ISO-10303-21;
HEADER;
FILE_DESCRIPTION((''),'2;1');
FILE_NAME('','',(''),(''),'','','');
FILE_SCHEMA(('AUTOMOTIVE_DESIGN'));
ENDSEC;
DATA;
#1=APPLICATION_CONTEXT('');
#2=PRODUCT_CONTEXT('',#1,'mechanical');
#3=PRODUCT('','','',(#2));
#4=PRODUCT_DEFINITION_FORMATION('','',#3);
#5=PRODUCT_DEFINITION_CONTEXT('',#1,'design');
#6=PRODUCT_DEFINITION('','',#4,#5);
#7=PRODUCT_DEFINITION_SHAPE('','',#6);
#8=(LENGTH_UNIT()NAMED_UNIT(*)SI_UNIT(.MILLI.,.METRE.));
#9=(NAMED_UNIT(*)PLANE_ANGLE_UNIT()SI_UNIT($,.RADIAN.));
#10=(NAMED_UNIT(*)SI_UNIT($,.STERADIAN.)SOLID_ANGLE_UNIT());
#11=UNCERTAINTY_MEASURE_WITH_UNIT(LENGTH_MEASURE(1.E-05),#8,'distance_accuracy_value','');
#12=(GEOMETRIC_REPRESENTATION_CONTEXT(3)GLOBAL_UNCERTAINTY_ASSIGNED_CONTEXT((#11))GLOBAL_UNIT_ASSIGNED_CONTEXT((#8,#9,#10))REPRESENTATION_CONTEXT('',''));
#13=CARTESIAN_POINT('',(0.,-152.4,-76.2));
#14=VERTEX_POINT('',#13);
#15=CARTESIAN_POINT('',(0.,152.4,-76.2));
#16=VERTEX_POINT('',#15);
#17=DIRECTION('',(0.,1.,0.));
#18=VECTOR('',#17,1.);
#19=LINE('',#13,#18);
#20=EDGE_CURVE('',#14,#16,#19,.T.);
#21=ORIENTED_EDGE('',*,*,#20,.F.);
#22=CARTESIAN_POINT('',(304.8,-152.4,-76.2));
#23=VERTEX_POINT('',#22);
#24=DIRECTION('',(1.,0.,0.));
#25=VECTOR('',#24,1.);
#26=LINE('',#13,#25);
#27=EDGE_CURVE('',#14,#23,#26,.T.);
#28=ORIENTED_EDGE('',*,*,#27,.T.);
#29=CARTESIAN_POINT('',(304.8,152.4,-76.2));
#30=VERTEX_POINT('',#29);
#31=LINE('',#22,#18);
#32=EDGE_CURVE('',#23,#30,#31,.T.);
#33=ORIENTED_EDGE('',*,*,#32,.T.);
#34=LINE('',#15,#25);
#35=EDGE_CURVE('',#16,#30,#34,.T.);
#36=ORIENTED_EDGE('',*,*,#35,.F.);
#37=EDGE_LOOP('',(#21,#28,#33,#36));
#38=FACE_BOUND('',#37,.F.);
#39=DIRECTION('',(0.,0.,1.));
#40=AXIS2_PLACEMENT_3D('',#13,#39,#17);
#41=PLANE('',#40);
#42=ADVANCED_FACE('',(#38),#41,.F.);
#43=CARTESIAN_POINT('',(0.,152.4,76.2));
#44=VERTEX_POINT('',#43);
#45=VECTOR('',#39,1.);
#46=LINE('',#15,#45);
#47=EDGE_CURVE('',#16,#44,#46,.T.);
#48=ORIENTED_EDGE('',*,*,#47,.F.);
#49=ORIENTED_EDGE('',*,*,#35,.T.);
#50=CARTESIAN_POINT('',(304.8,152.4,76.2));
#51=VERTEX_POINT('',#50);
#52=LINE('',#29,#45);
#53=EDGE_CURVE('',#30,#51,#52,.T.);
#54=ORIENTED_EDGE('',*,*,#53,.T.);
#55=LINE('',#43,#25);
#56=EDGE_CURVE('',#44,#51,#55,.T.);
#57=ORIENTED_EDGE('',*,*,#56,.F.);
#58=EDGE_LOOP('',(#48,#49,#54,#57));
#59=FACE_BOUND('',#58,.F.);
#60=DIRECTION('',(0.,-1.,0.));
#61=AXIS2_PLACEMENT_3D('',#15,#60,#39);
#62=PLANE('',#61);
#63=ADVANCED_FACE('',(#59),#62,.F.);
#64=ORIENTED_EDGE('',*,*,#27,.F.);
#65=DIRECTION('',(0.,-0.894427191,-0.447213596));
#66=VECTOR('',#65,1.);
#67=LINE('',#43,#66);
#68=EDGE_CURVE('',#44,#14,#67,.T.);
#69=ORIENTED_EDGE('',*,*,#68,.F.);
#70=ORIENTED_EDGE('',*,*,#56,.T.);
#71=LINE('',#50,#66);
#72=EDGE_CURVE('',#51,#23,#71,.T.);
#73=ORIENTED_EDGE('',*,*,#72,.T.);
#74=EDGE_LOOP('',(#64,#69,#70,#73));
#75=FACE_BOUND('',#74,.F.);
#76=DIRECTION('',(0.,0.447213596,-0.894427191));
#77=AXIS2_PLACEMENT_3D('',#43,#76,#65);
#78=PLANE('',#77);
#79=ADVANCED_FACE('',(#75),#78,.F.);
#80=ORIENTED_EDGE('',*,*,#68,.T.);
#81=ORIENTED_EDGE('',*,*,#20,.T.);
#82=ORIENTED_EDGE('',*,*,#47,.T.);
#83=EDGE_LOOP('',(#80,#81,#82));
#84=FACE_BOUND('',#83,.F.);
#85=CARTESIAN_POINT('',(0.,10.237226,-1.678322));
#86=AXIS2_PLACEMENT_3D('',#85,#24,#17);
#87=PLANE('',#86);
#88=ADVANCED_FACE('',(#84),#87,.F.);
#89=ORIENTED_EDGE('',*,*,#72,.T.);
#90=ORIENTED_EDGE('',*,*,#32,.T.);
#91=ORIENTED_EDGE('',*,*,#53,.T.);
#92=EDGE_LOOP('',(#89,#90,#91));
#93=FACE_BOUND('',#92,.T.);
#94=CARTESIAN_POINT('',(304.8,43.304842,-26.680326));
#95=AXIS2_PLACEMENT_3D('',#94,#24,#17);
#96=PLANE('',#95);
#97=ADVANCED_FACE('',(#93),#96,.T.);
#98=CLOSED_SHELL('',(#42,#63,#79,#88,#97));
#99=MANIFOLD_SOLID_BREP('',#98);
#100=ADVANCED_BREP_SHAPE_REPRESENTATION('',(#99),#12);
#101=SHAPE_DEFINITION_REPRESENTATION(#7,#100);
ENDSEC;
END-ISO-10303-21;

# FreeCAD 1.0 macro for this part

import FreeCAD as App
import Part
import Sketcher
Q = App.Units.Quantity

doc = App.newDocument("Part")
body = doc.addObject("PartDesign::Body", "Body")

sketch1 = body.newObject("Sketcher::SketchObject", "Sketch")
sketch1.AttachmentSupport = (doc.getObject("YZ_Plane"), [""])
sketch1.MapMode = "FlatFace"
sketch1.addGeometry([
    Part.LineSegment(App.Vector(152, 76, 0), App.Vector(-152, -76, 0)),
    Part.LineSegment(App.Vector(-152, -76, 0), App.Vector(152, -76, 0)),
    Part.LineSegment(App.Vector(152, -76, 0), App.Vector(152, 76, 0)),
    Part.LineSegment(App.Vector(-99, -64, 0), App.Vector(140, 56, 0)),
    Part.LineSegment(App.Vector(140, 56, 0), App.Vector(140, -64, 0)),
    Part.LineSegment(App.Vector(140, -64, 0), App.Vector(-99, -64, 0)),
], False)
sketch1.addConstraint([
    Sketcher.Constraint("Coincident", 0, 2, 1, 1),
    Sketcher.Constraint("Coincident", 1, 2, 2, 1),
    Sketcher.Constraint("Coincident", 2, 2, 0, 1),
    Sketcher.Constraint("Coincident", 3, 2, 4, 1),
    Sketcher.Constraint("Coincident", 4, 2, 5, 1),
    Sketcher.Constraint("Coincident", 5, 2, 3, 1),
    Sketcher.Constraint("Horizontal", 1),
    Sketcher.Constraint("Vertical", 2),
    Sketcher.Constraint("Vertical", 4),
    Sketcher.Constraint("Horizontal", 5),
    Sketcher.Constraint("Symmetric", 0, 2, 2, 2, -1, 1),
    Sketcher.Constraint("Parallel", 0, 3),
    Sketcher.Constraint("DistanceX", 1, 1, 1, 2, Q("12 in")),
    Sketcher.Constraint("DistanceY", 2, 1, 2, 2, Q("6 in")),
    Sketcher.Constraint("DistanceX", -1, 1, 3, 2, Q("5.5 in")),
    Sketcher.Constraint("DistanceY", 4, 2, -1, 1, Q("2.5 in")),
    Sketcher.Constraint("DistanceY", 4, 2, 4, 1, 119.150968),
])
pad1 = body.newObject("PartDesign::Pad", "Pad")
pad1.Profile = sketch1
pad1.Length = Q("12 in")

sketch2 = body.newObject("Sketcher::SketchObject", "Sketch001")
sketch2.AttachmentSupport = (doc.getObject("YZ_Plane"), [""])
sketch2.MapMode = "FlatFace"
sketch2.AttachmentOffset = App.Placement(App.Vector(0, 0, 12 * 25.4), App.Rotation())
sketch2.addGeometry([
    Part.LineSegment(App.Vector(140, 56, 0), App.Vector(-99, -64, 0)),
    Part.LineSegment(App.Vector(-99, -64, 0), App.Vector(140, -64, 0)),
    Part.LineSegment(App.Vector(140, -64, 0), App.Vector(140, 56, 0)),
], False)
sketch2.addConstraint([
    Sketcher.Constraint("Coincident", 0, 2, 1, 1),
    Sketcher.Constraint("Coincident", 1, 2, 2, 1),
    Sketcher.Constraint("Coincident", 2, 2, 0, 1),
    Sketcher.Constraint("Horizontal", 1),
    Sketcher.Constraint("Vertical", 2),
    Sketcher.Constraint("DistanceY", 0, 2, -1, 1, Q("2.5 in")),
    Sketcher.Constraint("DistanceX", -1, 1, 1, 2, Q("5.5 in")),
    Sketcher.Constraint("DistanceY", 2, 1, 2, 2, 119.150968),
    Sketcher.Constraint("DistanceX", 1, 1, 1, 2, 238.301937),
])
pad2 = body.newObject("PartDesign::Pad", "Pad001")
pad2.Profile = sketch2
pad2.Length = Q("12 in")
pad2.Reversed = True

doc.recompute()
